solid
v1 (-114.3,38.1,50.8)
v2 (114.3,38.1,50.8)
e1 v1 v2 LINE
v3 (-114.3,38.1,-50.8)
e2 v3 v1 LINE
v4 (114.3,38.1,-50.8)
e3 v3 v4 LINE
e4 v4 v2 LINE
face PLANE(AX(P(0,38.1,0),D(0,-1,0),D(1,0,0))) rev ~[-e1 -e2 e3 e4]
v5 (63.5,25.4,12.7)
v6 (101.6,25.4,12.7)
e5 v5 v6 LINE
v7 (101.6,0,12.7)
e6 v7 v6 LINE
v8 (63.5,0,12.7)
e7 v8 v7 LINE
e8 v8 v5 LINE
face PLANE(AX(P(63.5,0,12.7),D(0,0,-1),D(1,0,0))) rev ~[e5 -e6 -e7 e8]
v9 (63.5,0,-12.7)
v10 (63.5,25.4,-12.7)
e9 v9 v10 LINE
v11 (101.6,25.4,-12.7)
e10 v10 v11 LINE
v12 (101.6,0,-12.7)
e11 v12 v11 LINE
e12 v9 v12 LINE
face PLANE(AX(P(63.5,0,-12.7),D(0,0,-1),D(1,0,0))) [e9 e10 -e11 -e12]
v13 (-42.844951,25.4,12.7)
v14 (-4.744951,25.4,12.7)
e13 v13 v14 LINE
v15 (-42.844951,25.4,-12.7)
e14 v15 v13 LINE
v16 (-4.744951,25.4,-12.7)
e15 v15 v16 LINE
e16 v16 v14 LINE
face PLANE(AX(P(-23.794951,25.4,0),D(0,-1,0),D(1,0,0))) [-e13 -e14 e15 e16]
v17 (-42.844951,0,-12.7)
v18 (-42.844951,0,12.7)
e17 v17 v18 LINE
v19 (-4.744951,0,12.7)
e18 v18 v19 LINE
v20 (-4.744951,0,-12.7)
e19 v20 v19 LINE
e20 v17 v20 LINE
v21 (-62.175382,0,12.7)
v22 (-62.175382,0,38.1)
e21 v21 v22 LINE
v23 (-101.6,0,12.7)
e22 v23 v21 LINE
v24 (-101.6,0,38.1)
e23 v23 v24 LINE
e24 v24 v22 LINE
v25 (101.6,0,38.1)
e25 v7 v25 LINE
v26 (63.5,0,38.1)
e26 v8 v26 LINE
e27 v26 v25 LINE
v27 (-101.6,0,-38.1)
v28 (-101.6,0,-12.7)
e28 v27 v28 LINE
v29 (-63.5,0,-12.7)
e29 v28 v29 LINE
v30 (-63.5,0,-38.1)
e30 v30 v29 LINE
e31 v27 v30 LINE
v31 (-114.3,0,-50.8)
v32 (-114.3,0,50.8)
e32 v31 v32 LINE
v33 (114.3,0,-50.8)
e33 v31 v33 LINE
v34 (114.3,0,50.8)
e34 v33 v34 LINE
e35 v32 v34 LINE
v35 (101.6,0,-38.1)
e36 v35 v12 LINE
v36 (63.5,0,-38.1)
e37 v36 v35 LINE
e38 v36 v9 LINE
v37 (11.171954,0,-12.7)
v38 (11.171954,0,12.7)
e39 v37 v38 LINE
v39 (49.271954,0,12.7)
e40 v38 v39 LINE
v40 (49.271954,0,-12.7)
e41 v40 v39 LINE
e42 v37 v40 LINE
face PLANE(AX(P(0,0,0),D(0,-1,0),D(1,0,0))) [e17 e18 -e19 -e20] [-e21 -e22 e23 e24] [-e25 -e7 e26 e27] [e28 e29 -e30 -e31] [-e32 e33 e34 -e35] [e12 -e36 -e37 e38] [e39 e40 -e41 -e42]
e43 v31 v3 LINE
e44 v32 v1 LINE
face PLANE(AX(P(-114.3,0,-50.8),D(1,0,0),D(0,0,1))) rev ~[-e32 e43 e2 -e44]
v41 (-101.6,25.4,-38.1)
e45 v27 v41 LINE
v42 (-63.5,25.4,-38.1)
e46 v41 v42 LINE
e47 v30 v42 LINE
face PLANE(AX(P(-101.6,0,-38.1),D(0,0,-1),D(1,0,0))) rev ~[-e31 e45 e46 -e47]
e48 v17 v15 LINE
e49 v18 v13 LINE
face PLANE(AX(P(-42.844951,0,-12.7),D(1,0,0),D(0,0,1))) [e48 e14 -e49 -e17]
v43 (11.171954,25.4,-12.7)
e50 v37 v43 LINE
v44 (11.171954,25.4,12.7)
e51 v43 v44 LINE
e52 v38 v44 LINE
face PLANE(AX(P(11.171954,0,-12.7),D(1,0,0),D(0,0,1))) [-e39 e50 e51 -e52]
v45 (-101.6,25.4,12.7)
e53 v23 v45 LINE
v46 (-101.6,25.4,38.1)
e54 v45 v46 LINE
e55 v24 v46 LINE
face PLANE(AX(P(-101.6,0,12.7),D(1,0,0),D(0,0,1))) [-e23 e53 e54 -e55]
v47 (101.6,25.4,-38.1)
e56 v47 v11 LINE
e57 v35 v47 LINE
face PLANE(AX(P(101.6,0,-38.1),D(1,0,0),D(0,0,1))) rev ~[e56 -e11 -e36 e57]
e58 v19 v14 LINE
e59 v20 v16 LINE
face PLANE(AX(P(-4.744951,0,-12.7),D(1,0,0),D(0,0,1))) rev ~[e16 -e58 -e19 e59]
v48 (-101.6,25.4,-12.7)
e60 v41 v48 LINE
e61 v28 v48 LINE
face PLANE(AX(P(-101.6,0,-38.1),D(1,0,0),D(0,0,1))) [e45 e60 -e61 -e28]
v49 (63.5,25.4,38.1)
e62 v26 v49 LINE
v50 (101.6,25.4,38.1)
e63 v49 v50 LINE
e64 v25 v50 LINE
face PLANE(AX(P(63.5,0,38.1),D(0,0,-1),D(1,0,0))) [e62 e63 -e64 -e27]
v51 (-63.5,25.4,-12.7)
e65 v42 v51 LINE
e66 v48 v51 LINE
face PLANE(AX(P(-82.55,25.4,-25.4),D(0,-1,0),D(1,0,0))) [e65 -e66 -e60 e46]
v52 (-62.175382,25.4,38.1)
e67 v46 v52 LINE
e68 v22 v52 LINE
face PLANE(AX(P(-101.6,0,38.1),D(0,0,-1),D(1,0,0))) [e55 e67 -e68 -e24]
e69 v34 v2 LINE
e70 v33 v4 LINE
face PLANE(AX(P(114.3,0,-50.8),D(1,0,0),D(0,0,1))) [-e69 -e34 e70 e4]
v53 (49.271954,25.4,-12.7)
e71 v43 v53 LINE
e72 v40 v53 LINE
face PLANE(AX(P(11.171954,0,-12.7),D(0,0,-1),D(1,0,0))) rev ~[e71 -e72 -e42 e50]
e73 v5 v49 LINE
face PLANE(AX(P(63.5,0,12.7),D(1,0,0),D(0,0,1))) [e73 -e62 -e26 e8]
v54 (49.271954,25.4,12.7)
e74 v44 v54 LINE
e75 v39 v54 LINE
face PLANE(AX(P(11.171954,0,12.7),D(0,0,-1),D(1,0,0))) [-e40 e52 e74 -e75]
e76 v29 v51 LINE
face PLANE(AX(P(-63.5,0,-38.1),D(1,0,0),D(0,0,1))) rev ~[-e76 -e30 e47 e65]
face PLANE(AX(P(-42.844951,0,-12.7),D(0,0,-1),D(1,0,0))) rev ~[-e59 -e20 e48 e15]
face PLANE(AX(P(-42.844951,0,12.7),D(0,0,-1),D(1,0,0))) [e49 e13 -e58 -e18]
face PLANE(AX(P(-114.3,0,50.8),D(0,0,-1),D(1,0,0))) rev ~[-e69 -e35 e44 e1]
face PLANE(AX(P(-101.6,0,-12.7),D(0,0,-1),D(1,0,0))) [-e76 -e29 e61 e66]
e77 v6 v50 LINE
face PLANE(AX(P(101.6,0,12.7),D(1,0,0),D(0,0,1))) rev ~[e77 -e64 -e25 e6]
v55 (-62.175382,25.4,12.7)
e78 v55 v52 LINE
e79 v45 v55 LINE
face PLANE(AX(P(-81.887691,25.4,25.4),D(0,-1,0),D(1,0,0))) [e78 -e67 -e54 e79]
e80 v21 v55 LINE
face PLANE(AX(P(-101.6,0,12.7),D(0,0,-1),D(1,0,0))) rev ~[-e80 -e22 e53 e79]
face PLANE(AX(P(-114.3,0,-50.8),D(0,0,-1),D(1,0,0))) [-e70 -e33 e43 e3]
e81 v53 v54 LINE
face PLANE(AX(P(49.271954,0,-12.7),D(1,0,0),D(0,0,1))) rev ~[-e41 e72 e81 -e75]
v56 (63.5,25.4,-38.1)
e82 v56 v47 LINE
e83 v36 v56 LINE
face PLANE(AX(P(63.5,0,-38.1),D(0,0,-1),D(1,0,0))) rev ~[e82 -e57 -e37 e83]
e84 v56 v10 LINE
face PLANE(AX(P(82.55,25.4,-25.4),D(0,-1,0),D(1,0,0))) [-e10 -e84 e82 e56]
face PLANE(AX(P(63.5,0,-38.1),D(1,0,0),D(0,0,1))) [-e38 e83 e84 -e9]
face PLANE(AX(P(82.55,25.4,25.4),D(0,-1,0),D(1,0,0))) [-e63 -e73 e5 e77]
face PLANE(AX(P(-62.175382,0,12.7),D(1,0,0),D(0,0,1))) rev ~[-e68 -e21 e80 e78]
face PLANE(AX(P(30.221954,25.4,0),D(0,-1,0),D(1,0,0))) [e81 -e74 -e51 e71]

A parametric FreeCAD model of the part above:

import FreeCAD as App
import Part
import Sketcher
Q = App.Units.Quantity


def add_polygon(sketch, points):
    """Adds a closed chain of lines whose ends are joined by coincident constraints."""
    first, n = sketch.GeometryCount, len(points)
    for a, b in zip(points, points[1:] + points[:1]):
        sketch.addGeometry(Part.LineSegment(App.Vector(*a, 0), App.Vector(*b, 0)), False)
    for i in range(n):
        sketch.addConstraint(Sketcher.Constraint("Coincident", first + i, 2, first + (i + 1) % n, 1))

doc = App.newDocument("Part")
body = doc.addObject("PartDesign::Body", "Body")

sketch1 = body.newObject("Sketcher::SketchObject", "Sketch")
sketch1.AttachmentSupport = (doc.getObject("XZ_Plane"), [""])
sketch1.MapMode = "FlatFace"
add_polygon(sketch1, [(-114, 51), (-114, -51), (114, -51), (114, 51)])
sketch1.addConstraint(Sketcher.Constraint("Vertical", 0))
sketch1.addConstraint(Sketcher.Constraint("Horizontal", 1))
sketch1.addConstraint(Sketcher.Constraint("Vertical", 2))
sketch1.addConstraint(Sketcher.Constraint("Horizontal", 3))
sketch1.addConstraint(Sketcher.Constraint("Symmetric", 0, 2, 2, 2, -1, 1))
sketch1.addConstraint(Sketcher.Constraint("DistanceX", 1, 1, 1, 2, Q("9 in")))
sketch1.addConstraint(Sketcher.Constraint("DistanceY", 0, 2, 0, 1, Q("4 in")))
pad1 = body.newObject("PartDesign::Pad", "Pad")
pad1.Profile = sketch1
pad1.Length = Q("1.5 in")
pad1.Reversed = True

sketch2 = body.newObject("Sketcher::SketchObject", "Sketch001")
sketch2.AttachmentSupport = (doc.getObject("XZ_Plane"), [""])
sketch2.MapMode = "FlatFace"
add_polygon(sketch2, [(-102, 38), (-102, 13), (-62, 13), (-62, 38)])
add_polygon(sketch2, [(-102, -13), (-102, -38), (-64, -38), (-64, -13)])
add_polygon(sketch2, [(-43, 13), (-43, -13), (-5, -13), (-5, 13)])
add_polygon(sketch2, [(11, 13), (11, -13), (49, -13), (49, 13)])
add_polygon(sketch2, [(64, 38), (64, 13), (102, 13), (102, 38)])
add_polygon(sketch2, [(64, -13), (64, -38), (102, -38), (102, -13)])
sketch2.addConstraint(Sketcher.Constraint("Vertical", 0))
sketch2.addConstraint(Sketcher.Constraint("Horizontal", 1))
sketch2.addConstraint(Sketcher.Constraint("Vertical", 2))
sketch2.addConstraint(Sketcher.Constraint("Horizontal", 3))
sketch2.addConstraint(Sketcher.Constraint("Vertical", 4))
sketch2.addConstraint(Sketcher.Constraint("Horizontal", 5))
sketch2.addConstraint(Sketcher.Constraint("Vertical", 6))
sketch2.addConstraint(Sketcher.Constraint("Horizontal", 7))
sketch2.addConstraint(Sketcher.Constraint("Vertical", 8))
sketch2.addConstraint(Sketcher.Constraint("Horizontal", 9))
sketch2.addConstraint(Sketcher.Constraint("Vertical", 10))
sketch2.addConstraint(Sketcher.Constraint("Horizontal", 11))
sketch2.addConstraint(Sketcher.Constraint("Vertical", 12))
sketch2.addConstraint(Sketcher.Constraint("Horizontal", 13))
sketch2.addConstraint(Sketcher.Constraint("Vertical", 14))
sketch2.addConstraint(Sketcher.Constraint("Horizontal", 15))
sketch2.addConstraint(Sketcher.Constraint("Vertical", 16))
sketch2.addConstraint(Sketcher.Constraint("Horizontal", 17))
sketch2.addConstraint(Sketcher.Constraint("Vertical", 18))
sketch2.addConstraint(Sketcher.Constraint("Horizontal", 19))
sketch2.addConstraint(Sketcher.Constraint("Vertical", 20))
sketch2.addConstraint(Sketcher.Constraint("Horizontal", 21))
sketch2.addConstraint(Sketcher.Constraint("Vertical", 22))
sketch2.addConstraint(Sketcher.Constraint("Horizontal", 23))
sketch2.addConstraint(Sketcher.Constraint("Symmetric", 6, 2, 16, 2, -1, 1))
sketch2.addConstraint(Sketcher.Constraint("Symmetric", 4, 2, 18, 2, -1, 1))
sketch2.addConstraint(Sketcher.Constraint("Symmetric", 3, 2, 21, 2, -1, 1))
sketch2.addConstraint(Sketcher.Constraint("Symmetric", 0, 2, 17, 2, -2))
sketch2.addConstraint(Sketcher.Constraint("Symmetric", 5, 2, 20, 2, -2))
sketch2.addConstraint(Sketcher.Constraint("Horizontal", 7, 2, 8, 2))
sketch2.addConstraint(Sketcher.Constraint("Horizontal", 1, 2, 10, 2))
sketch2.addConstraint(Sketcher.Constraint("Horizontal", 9, 2, 12, 2))
sketch2.addConstraint(Sketcher.Constraint("Horizontal", 11, 2, 14, 2))
sketch2.addConstraint(Sketcher.Constraint("Horizontal", 13, 2, 22, 2))
sketch2.addConstraint(Sketcher.Constraint("Equal", 7, 9))
sketch2.addConstraint(Sketcher.Constraint("Equal", 11, 13))
sketch2.addConstraint(Sketcher.Constraint("Equal", 6, 8))
sketch2.addConstraint(Sketcher.Constraint("DistanceY", 0, 2, 0, 1, Q("1 in")))
sketch2.addConstraint(Sketcher.Constraint("DistanceX", 5, 1, 5, 2, Q("1.5 in")))
sketch2.addConstraint(Sketcher.Constraint("DistanceX", 0, 2, -1, 1, Q("4 in")))
sketch2.addConstraint(Sketcher.Constraint("DistanceX", 1, 1, 1, 2, Q("39.424618 mm")))
sketch2.addConstraint(Sketcher.Constraint("DistanceX", 8, 2, -1, 1, Q("42.844951 mm")))
sketch2.addConstraint(Sketcher.Constraint("DistanceX", -1, 1, 12, 2, Q("11.171954 mm")))
pocket1 = body.newObject("PartDesign::Pocket", "Pocket")
pocket1.Profile = sketch2
pocket1.Length = Q("1 in")

doc.recompute()
